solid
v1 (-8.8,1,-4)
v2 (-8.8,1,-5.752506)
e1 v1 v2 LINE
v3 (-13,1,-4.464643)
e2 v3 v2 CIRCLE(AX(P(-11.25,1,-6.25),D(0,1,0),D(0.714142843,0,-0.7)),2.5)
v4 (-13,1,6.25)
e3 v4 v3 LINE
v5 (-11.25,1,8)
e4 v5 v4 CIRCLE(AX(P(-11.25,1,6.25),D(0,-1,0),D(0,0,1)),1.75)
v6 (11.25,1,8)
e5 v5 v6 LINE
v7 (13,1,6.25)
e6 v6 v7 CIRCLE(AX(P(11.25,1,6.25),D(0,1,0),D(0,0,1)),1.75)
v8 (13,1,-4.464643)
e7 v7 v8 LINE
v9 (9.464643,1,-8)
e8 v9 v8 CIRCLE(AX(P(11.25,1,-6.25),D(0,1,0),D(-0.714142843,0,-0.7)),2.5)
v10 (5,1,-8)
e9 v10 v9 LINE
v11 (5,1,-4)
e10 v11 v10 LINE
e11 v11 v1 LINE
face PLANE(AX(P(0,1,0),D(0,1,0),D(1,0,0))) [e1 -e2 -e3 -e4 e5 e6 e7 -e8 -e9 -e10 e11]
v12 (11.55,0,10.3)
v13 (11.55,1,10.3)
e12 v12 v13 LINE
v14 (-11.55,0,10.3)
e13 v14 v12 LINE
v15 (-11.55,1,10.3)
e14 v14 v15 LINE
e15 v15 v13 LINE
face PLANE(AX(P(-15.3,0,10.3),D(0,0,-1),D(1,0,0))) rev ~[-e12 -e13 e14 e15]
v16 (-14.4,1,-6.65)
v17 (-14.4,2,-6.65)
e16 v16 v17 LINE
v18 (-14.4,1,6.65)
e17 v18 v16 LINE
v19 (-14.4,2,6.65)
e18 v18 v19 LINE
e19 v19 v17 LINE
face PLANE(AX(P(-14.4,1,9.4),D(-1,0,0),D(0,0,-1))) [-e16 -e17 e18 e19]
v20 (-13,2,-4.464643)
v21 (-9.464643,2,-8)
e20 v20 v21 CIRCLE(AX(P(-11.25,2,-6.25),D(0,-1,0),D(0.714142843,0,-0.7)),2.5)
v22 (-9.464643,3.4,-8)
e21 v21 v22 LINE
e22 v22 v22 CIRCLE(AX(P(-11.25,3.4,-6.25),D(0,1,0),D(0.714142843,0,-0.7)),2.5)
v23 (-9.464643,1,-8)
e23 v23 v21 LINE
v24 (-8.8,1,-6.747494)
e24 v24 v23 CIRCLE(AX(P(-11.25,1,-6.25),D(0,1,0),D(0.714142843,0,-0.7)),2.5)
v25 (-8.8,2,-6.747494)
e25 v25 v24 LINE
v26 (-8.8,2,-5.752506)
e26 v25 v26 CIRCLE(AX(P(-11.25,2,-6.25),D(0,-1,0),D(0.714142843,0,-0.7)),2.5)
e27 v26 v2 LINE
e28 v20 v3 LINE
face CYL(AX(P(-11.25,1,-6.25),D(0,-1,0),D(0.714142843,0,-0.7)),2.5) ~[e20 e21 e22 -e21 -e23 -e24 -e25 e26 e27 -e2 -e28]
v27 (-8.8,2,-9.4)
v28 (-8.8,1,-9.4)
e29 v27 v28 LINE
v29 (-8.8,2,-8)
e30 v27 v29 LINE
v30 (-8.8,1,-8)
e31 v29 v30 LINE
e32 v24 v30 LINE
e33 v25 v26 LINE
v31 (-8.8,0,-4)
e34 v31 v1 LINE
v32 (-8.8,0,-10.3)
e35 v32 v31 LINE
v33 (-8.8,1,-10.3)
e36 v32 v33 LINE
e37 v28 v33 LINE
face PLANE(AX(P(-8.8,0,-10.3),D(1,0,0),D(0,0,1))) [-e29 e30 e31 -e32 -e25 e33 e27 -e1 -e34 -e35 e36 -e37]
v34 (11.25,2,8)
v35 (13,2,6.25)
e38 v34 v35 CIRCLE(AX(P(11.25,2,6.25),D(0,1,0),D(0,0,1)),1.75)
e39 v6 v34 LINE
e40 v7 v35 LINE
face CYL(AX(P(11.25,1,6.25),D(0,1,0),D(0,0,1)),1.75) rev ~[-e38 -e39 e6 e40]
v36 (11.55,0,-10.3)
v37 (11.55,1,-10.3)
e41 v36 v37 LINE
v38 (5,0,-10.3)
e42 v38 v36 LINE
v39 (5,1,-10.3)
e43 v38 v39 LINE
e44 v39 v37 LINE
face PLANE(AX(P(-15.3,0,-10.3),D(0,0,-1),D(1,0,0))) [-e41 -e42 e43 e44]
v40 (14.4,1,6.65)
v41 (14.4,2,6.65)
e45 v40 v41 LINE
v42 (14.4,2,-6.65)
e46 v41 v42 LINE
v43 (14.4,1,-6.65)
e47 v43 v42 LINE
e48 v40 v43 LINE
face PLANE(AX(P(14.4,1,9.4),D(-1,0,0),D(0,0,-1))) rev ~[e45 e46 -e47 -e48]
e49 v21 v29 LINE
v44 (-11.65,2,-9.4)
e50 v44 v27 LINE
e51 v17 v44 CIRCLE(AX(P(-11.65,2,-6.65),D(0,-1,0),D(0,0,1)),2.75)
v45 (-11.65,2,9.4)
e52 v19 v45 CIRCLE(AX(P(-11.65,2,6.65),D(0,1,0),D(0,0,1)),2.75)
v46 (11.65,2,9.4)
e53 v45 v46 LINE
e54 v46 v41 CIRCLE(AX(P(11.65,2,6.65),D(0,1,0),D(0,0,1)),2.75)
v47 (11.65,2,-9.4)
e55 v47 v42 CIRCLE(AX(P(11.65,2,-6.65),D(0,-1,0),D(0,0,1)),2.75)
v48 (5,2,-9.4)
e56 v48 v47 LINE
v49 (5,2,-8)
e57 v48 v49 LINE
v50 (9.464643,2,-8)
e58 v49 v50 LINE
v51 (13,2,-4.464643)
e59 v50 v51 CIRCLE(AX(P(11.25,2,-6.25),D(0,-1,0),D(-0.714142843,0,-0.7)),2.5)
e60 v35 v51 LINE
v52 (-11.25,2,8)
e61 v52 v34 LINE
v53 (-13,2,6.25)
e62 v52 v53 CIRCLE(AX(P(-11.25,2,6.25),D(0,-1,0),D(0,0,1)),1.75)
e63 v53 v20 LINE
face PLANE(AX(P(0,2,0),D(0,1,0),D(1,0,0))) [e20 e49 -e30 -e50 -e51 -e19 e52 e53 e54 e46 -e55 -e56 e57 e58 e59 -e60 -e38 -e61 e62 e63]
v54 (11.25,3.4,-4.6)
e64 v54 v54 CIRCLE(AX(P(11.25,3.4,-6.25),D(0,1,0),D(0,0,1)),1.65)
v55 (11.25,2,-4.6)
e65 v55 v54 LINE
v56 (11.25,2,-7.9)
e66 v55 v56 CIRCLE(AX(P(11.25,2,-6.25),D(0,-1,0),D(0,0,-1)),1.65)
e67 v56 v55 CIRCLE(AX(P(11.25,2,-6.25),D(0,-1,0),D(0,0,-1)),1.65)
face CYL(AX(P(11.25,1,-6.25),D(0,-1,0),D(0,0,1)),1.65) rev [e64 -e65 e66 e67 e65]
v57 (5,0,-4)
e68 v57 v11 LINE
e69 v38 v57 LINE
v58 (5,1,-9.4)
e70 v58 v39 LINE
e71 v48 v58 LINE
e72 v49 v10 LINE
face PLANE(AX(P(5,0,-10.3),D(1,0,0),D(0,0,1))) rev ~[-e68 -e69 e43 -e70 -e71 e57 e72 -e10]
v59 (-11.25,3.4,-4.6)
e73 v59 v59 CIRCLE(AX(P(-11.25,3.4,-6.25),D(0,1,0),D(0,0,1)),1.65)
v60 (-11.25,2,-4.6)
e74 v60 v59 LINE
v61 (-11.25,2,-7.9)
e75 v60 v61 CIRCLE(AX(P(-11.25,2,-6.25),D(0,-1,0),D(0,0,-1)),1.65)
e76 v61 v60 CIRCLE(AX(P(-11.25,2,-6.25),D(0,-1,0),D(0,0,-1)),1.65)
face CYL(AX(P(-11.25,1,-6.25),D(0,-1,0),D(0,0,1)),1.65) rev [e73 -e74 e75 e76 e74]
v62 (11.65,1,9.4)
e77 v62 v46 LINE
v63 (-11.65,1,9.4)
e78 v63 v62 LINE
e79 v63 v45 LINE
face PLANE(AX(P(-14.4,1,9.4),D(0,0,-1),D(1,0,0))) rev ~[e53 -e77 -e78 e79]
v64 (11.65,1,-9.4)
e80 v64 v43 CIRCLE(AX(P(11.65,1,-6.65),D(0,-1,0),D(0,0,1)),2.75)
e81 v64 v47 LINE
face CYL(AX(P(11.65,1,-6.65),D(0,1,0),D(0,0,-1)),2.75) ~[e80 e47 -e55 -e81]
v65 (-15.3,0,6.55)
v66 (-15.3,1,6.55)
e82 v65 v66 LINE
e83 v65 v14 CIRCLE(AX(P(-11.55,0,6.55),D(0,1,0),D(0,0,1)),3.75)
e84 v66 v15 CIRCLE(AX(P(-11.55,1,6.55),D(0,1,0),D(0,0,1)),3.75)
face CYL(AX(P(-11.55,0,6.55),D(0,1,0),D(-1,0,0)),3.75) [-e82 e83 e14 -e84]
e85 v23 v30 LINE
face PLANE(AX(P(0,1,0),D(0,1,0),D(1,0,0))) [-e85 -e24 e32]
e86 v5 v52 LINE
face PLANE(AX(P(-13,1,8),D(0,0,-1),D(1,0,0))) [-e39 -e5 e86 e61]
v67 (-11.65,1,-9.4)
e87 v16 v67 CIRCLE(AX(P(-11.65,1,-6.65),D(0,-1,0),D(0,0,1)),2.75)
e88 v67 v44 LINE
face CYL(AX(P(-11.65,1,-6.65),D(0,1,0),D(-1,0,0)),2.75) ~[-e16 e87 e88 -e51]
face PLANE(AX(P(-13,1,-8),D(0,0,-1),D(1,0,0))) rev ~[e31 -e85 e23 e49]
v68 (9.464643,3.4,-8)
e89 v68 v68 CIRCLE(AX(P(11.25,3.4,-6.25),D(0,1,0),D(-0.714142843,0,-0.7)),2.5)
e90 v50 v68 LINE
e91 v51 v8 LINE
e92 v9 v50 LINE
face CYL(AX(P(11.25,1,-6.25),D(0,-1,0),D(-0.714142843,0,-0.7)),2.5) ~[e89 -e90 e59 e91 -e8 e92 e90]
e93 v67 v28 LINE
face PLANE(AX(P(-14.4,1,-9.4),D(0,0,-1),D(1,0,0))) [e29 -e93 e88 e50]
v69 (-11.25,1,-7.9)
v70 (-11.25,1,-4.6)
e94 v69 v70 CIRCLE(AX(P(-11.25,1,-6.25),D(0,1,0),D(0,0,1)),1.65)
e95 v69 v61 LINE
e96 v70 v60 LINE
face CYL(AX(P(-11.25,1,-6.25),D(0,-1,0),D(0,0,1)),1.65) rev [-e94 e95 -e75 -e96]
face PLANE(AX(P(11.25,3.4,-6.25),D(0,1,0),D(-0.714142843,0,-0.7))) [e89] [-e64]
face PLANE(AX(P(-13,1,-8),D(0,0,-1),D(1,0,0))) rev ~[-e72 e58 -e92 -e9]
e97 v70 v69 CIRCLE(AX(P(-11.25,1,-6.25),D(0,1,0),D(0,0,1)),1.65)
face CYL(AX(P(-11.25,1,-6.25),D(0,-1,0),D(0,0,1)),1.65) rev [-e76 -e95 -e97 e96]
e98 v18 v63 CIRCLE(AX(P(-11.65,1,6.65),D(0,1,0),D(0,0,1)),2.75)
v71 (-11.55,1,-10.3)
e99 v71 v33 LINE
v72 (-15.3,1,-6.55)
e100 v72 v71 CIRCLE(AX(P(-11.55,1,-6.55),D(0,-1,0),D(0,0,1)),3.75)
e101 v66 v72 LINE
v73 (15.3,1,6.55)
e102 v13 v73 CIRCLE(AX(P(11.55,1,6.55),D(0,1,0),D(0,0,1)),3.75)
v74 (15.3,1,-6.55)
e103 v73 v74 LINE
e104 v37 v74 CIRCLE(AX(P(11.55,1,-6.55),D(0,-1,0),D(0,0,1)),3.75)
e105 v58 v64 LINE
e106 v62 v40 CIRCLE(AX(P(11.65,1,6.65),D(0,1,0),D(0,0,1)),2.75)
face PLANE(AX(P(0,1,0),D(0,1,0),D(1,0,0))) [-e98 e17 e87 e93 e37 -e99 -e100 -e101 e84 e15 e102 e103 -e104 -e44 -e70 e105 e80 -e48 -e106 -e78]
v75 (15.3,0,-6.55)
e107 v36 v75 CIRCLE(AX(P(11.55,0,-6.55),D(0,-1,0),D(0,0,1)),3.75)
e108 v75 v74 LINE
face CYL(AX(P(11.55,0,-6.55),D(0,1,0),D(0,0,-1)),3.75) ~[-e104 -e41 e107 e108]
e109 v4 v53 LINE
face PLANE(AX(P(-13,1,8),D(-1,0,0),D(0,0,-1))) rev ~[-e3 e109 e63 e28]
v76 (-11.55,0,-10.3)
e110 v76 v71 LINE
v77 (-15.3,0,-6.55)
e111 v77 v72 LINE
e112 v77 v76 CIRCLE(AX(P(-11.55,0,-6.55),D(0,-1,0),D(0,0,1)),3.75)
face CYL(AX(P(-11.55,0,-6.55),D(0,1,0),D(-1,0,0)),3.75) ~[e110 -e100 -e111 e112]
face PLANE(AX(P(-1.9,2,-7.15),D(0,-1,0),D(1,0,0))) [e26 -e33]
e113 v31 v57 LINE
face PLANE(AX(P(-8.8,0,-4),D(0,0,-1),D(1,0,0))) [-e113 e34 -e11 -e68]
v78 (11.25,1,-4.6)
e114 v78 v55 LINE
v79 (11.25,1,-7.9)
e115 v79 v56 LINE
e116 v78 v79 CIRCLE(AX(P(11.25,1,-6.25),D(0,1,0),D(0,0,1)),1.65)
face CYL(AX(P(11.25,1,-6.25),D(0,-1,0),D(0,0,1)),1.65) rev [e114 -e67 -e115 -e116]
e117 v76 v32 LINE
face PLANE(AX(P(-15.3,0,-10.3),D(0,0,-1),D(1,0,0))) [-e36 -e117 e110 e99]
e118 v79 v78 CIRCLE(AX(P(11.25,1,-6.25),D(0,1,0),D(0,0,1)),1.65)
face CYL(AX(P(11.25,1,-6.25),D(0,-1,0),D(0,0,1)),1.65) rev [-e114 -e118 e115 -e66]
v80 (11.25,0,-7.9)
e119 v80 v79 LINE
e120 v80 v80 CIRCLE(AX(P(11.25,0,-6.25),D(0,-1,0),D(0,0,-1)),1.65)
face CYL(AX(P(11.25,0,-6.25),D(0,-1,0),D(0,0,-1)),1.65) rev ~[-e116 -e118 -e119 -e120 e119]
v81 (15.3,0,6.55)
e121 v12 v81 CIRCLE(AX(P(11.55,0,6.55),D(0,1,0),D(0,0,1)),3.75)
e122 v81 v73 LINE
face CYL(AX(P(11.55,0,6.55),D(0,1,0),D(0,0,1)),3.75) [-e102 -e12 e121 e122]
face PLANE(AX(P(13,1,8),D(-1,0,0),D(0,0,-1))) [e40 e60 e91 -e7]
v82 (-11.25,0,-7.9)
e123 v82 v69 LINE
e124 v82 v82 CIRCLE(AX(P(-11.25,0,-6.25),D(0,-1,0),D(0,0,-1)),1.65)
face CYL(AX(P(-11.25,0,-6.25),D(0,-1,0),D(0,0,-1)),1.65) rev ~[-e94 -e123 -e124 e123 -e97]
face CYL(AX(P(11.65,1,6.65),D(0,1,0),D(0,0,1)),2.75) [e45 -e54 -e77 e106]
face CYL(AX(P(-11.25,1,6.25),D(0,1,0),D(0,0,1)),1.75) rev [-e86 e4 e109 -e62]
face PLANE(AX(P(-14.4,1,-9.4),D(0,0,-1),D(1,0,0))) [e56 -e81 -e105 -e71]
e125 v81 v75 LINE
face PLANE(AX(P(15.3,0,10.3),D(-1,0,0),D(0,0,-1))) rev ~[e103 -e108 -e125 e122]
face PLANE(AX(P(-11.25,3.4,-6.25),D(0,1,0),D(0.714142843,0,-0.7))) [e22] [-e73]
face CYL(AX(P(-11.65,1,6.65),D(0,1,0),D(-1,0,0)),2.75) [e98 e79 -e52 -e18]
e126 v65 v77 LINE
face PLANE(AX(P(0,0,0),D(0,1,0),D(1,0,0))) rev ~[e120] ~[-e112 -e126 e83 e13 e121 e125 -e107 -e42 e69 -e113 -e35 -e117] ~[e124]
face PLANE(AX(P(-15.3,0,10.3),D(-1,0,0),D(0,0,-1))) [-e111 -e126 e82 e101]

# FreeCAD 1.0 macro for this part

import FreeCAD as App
import Part
import Sketcher

V = App.Vector


def edges_at(feature, points):
    """Names of the edges that pass closest to the given points."""
    edges = feature.Shape.Edges
    near = lambda p: min(range(len(edges)), key=lambda i: edges[i].distToShape(Part.Vertex(*p))[0])
    return sorted({f"Edge{near(p) + 1}" for p in points})

doc = App.newDocument("Part")
body = doc.addObject("PartDesign::Body", "Body")

sketch1 = body.newObject("Sketcher::SketchObject", "Sketch")
sketch1.AttachmentSupport = (doc.getObject("XZ_Plane"), [""])
sketch1.MapMode = "FlatFace"
sketch1.addGeometry(Part.LineSegment(V(-15, -10, 0), V(-15, 10, 0)), False)
sketch1.addGeometry(Part.LineSegment(V(-15, 10, 0), V(15, 10, 0)), False)
sketch1.addGeometry(Part.LineSegment(V(15, 10, 0), V(15, -10, 0)), False)
sketch1.addGeometry(Part.LineSegment(V(15, -10, 0), V(-15, -10, 0)), False)
sketch1.addConstraint(Sketcher.Constraint("Coincident", 0, 2, 1, 1))
sketch1.addConstraint(Sketcher.Constraint("Coincident", 1, 2, 2, 1))
sketch1.addConstraint(Sketcher.Constraint("Coincident", 2, 2, 3, 1))
sketch1.addConstraint(Sketcher.Constraint("Coincident", 3, 2, 0, 1))
sketch1.addConstraint(Sketcher.Constraint("Vertical", 0))
sketch1.addConstraint(Sketcher.Constraint("Horizontal", 1))
sketch1.addConstraint(Sketcher.Constraint("Vertical", 2))
sketch1.addConstraint(Sketcher.Constraint("Horizontal", 3))
sketch1.addConstraint(Sketcher.Constraint("Symmetric", 0, 2, 2, 2, -1, 1))
sketch1.addConstraint(Sketcher.Constraint("DistanceX", 1, 1, 1, 2, 30.6))
sketch1.addConstraint(Sketcher.Constraint("DistanceY", 0, 1, 0, 2, 20.6))
pad1 = body.newObject("PartDesign::Pad", "Pad")
pad1.Profile = sketch1
pad1.Length = 1
pad1.Reversed = True

sketch2 = body.newObject("Sketcher::SketchObject", "Sketch001")
sketch2.AttachmentSupport = (doc.getObject("XZ_Plane"), [""])
sketch2.MapMode = "FlatFace"
sketch2.AttachmentOffset = App.Placement(V(0, 0, -1), App.Rotation())
sketch2.addGeometry(Part.LineSegment(V(-14, -9, 0), V(-14, 9, 0)), False)
sketch2.addGeometry(Part.LineSegment(V(-14, 9, 0), V(14, 9, 0)), False)
sketch2.addGeometry(Part.LineSegment(V(14, 9, 0), V(14, -9, 0)), False)
sketch2.addGeometry(Part.LineSegment(V(14, -9, 0), V(-14, -9, 0)), False)
sketch2.addGeometry(Part.LineSegment(V(13, 8, 0), V(-13, 8, 0)), False)
sketch2.addGeometry(Part.LineSegment(V(-13, 8, 0), V(-13, -8, 0)), False)
sketch2.addGeometry(Part.LineSegment(V(-13, -8, 0), V(13, -8, 0)), False)
sketch2.addGeometry(Part.LineSegment(V(13, -8, 0), V(13, 8, 0)), False)
sketch2.addConstraint(Sketcher.Constraint("Coincident", 0, 2, 1, 1))
sketch2.addConstraint(Sketcher.Constraint("Coincident", 1, 2, 2, 1))
sketch2.addConstraint(Sketcher.Constraint("Coincident", 2, 2, 3, 1))
sketch2.addConstraint(Sketcher.Constraint("Coincident", 3, 2, 0, 1))
sketch2.addConstraint(Sketcher.Constraint("Coincident", 4, 2, 5, 1))
sketch2.addConstraint(Sketcher.Constraint("Coincident", 5, 2, 6, 1))
sketch2.addConstraint(Sketcher.Constraint("Coincident", 6, 2, 7, 1))
sketch2.addConstraint(Sketcher.Constraint("Coincident", 7, 2, 4, 1))
sketch2.addConstraint(Sketcher.Constraint("Vertical", 0))
sketch2.addConstraint(Sketcher.Constraint("Horizontal", 1))
sketch2.addConstraint(Sketcher.Constraint("Vertical", 2))
sketch2.addConstraint(Sketcher.Constraint("Horizontal", 3))
sketch2.addConstraint(Sketcher.Constraint("Horizontal", 4))
sketch2.addConstraint(Sketcher.Constraint("Vertical", 5))
sketch2.addConstraint(Sketcher.Constraint("Horizontal", 6))
sketch2.addConstraint(Sketcher.Constraint("Vertical", 7))
sketch2.addConstraint(Sketcher.Constraint("Symmetric", 0, 2, 2, 2, -1, 1))
sketch2.addConstraint(Sketcher.Constraint("Symmetric", 4, 2, 6, 2, -1, 1))
sketch2.addConstraint(Sketcher.Constraint("DistanceX", 4, 2, 4, 1, 26.0))
sketch2.addConstraint(Sketcher.Constraint("DistanceY", 5, 2, 5, 1, 16.0))
sketch2.addConstraint(Sketcher.Constraint("DistanceX", 1, 1, 1, 2, 28.8))
sketch2.addConstraint(Sketcher.Constraint("DistanceY", 0, 1, 0, 2, 18.8))
pad2 = body.newObject("PartDesign::Pad", "Pad001")
pad2.Profile = sketch2
pad2.Length = 1
pad2.Reversed = True

sketch3 = body.newObject("Sketcher::SketchObject", "Sketch002")
sketch3.AttachmentSupport = (doc.getObject("XZ_Plane"), [""])
sketch3.MapMode = "FlatFace"
sketch3.AttachmentOffset = App.Placement(V(0, 0, -1), App.Rotation())
sketch3.addGeometry(Part.Circle(V(-11.2, -6.2, 0), V(0, 0, 1), 2.5), False)
sketch3.addGeometry(Part.Circle(V(-11.2, -6.2, 0), V(0, 0, 1), 1.6), False)
sketch3.addGeometry(Part.Circle(V(11.2, -6.2, 0), V(0, 0, 1), 2.5), False)
sketch3.addGeometry(Part.Circle(V(11.2, -6.2, 0), V(0, 0, 1), 1.6), False)
sketch3.addConstraint(Sketcher.Constraint("Coincident", 1, 3, 0, 3))
sketch3.addConstraint(Sketcher.Constraint("Coincident", 3, 3, 2, 3))
sketch3.addConstraint(Sketcher.Constraint("Equal", 0, 2))
sketch3.addConstraint(Sketcher.Constraint("Equal", 1, 3))
sketch3.addConstraint(Sketcher.Constraint("Symmetric", 0, 3, 2, 3, -2))
sketch3.addConstraint(Sketcher.Constraint("Diameter", 0, 5.0))
sketch3.addConstraint(Sketcher.Constraint("Diameter", 1, 3.3))
sketch3.addConstraint(Sketcher.Constraint("DistanceX", 0, 3, 2, 3, 22.5))
sketch3.addConstraint(Sketcher.Constraint("DistanceY", 0, 3, -1, 1, 6.25))
pad3 = body.newObject("PartDesign::Pad", "Pad002")
pad3.Profile = sketch3
pad3.Length = 2.4
pad3.Reversed = True
doc.recompute()

fillet = body.newObject("PartDesign::Fillet", "Fillet")
fillet.Base = (pad3, edges_at(pad3, [
    (-14.4, 1.5, -9.4),
    (-14.4, 1.5, 9.4),
    (14.4, 1.5, 9.4),
    (14.4, 1.5, -9.4),
]))
fillet.Radius = 2.75
doc.recompute()

fillet2 = body.newObject("PartDesign::Fillet", "Fillet001")
fillet2.Base = (fillet, edges_at(fillet, [
    (-15.3, 0.5, -10.3),
    (15.3, 0.5, -10.3),
    (15.3, 0.5, 10.3),
    (-15.3, 0.5, 10.3),
]))
fillet2.Radius = 3.75
doc.recompute()

fillet3 = body.newObject("PartDesign::Fillet", "Fillet002")
fillet3.Base = (fillet2, edges_at(fillet2, [(-13, 1.5, 8), (13, 1.5, 8)]))
fillet3.Radius = 1.75

sketch4 = body.newObject("Sketcher::SketchObject", "Sketch003")
sketch4.AttachmentSupport = (doc.getObject("XZ_Plane"), [""])
sketch4.MapMode = "FlatFace"
sketch4.addGeometry(Part.Circle(V(-11.2, -6.2, 0), V(0, 0, 1), 1.6), False)
sketch4.addGeometry(Part.Circle(V(11.2, -6.2, 0), V(0, 0, 1), 1.6), False)
sketch4.addGeometry(Part.LineSegment(V(-8.8, -4, 0), V(-8.8, -10.3, 0)), False)
sketch4.addGeometry(Part.LineSegment(V(-8.8, -10.3, 0), V(5, -10.3, 0)), False)
sketch4.addGeometry(Part.LineSegment(V(5, -10.3, 0), V(5, -4, 0)), False)
sketch4.addGeometry(Part.LineSegment(V(5, -4, 0), V(-8.8, -4, 0)), False)
sketch4.addConstraint(Sketcher.Constraint("Coincident", 2, 2, 3, 1))
sketch4.addConstraint(Sketcher.Constraint("Coincident", 3, 2, 4, 1))
sketch4.addConstraint(Sketcher.Constraint("Coincident", 4, 2, 5, 1))
sketch4.addConstraint(Sketcher.Constraint("Coincident", 5, 2, 2, 1))
sketch4.addConstraint(Sketcher.Constraint("Vertical", 2))
sketch4.addConstraint(Sketcher.Constraint("Horizontal", 3))
sketch4.addConstraint(Sketcher.Constraint("Vertical", 4))
sketch4.addConstraint(Sketcher.Constraint("Horizontal", 5))
sketch4.addConstraint(Sketcher.Constraint("Equal", 0, 1))
sketch4.addConstraint(Sketcher.Constraint("Symmetric", 0, 3, 1, 3, -2))
sketch4.addConstraint(Sketcher.Constraint("Diameter", 0, 3.3))
sketch4.addConstraint(Sketcher.Constraint("DistanceX", 3, 1, 3, 2, 13.8))
sketch4.addConstraint(Sketcher.Constraint("DistanceY", 2, 2, 2, 1, 6.3))
sketch4.addConstraint(Sketcher.Constraint("DistanceX", -1, 1, 3, 2, 5.0))
sketch4.addConstraint(Sketcher.Constraint("DistanceY", 4, 2, -1, 1, 4.0))
sketch4.addConstraint(Sketcher.Constraint("DistanceX", 0, 3, 1, 3, 22.5))
sketch4.addConstraint(Sketcher.Constraint("DistanceY", 0, 3, -1, 1, 6.25))
pocket1 = body.newObject("PartDesign::Pocket", "Pocket")
pocket1.Profile = sketch4
pocket1.Length = 2

doc.recompute()
